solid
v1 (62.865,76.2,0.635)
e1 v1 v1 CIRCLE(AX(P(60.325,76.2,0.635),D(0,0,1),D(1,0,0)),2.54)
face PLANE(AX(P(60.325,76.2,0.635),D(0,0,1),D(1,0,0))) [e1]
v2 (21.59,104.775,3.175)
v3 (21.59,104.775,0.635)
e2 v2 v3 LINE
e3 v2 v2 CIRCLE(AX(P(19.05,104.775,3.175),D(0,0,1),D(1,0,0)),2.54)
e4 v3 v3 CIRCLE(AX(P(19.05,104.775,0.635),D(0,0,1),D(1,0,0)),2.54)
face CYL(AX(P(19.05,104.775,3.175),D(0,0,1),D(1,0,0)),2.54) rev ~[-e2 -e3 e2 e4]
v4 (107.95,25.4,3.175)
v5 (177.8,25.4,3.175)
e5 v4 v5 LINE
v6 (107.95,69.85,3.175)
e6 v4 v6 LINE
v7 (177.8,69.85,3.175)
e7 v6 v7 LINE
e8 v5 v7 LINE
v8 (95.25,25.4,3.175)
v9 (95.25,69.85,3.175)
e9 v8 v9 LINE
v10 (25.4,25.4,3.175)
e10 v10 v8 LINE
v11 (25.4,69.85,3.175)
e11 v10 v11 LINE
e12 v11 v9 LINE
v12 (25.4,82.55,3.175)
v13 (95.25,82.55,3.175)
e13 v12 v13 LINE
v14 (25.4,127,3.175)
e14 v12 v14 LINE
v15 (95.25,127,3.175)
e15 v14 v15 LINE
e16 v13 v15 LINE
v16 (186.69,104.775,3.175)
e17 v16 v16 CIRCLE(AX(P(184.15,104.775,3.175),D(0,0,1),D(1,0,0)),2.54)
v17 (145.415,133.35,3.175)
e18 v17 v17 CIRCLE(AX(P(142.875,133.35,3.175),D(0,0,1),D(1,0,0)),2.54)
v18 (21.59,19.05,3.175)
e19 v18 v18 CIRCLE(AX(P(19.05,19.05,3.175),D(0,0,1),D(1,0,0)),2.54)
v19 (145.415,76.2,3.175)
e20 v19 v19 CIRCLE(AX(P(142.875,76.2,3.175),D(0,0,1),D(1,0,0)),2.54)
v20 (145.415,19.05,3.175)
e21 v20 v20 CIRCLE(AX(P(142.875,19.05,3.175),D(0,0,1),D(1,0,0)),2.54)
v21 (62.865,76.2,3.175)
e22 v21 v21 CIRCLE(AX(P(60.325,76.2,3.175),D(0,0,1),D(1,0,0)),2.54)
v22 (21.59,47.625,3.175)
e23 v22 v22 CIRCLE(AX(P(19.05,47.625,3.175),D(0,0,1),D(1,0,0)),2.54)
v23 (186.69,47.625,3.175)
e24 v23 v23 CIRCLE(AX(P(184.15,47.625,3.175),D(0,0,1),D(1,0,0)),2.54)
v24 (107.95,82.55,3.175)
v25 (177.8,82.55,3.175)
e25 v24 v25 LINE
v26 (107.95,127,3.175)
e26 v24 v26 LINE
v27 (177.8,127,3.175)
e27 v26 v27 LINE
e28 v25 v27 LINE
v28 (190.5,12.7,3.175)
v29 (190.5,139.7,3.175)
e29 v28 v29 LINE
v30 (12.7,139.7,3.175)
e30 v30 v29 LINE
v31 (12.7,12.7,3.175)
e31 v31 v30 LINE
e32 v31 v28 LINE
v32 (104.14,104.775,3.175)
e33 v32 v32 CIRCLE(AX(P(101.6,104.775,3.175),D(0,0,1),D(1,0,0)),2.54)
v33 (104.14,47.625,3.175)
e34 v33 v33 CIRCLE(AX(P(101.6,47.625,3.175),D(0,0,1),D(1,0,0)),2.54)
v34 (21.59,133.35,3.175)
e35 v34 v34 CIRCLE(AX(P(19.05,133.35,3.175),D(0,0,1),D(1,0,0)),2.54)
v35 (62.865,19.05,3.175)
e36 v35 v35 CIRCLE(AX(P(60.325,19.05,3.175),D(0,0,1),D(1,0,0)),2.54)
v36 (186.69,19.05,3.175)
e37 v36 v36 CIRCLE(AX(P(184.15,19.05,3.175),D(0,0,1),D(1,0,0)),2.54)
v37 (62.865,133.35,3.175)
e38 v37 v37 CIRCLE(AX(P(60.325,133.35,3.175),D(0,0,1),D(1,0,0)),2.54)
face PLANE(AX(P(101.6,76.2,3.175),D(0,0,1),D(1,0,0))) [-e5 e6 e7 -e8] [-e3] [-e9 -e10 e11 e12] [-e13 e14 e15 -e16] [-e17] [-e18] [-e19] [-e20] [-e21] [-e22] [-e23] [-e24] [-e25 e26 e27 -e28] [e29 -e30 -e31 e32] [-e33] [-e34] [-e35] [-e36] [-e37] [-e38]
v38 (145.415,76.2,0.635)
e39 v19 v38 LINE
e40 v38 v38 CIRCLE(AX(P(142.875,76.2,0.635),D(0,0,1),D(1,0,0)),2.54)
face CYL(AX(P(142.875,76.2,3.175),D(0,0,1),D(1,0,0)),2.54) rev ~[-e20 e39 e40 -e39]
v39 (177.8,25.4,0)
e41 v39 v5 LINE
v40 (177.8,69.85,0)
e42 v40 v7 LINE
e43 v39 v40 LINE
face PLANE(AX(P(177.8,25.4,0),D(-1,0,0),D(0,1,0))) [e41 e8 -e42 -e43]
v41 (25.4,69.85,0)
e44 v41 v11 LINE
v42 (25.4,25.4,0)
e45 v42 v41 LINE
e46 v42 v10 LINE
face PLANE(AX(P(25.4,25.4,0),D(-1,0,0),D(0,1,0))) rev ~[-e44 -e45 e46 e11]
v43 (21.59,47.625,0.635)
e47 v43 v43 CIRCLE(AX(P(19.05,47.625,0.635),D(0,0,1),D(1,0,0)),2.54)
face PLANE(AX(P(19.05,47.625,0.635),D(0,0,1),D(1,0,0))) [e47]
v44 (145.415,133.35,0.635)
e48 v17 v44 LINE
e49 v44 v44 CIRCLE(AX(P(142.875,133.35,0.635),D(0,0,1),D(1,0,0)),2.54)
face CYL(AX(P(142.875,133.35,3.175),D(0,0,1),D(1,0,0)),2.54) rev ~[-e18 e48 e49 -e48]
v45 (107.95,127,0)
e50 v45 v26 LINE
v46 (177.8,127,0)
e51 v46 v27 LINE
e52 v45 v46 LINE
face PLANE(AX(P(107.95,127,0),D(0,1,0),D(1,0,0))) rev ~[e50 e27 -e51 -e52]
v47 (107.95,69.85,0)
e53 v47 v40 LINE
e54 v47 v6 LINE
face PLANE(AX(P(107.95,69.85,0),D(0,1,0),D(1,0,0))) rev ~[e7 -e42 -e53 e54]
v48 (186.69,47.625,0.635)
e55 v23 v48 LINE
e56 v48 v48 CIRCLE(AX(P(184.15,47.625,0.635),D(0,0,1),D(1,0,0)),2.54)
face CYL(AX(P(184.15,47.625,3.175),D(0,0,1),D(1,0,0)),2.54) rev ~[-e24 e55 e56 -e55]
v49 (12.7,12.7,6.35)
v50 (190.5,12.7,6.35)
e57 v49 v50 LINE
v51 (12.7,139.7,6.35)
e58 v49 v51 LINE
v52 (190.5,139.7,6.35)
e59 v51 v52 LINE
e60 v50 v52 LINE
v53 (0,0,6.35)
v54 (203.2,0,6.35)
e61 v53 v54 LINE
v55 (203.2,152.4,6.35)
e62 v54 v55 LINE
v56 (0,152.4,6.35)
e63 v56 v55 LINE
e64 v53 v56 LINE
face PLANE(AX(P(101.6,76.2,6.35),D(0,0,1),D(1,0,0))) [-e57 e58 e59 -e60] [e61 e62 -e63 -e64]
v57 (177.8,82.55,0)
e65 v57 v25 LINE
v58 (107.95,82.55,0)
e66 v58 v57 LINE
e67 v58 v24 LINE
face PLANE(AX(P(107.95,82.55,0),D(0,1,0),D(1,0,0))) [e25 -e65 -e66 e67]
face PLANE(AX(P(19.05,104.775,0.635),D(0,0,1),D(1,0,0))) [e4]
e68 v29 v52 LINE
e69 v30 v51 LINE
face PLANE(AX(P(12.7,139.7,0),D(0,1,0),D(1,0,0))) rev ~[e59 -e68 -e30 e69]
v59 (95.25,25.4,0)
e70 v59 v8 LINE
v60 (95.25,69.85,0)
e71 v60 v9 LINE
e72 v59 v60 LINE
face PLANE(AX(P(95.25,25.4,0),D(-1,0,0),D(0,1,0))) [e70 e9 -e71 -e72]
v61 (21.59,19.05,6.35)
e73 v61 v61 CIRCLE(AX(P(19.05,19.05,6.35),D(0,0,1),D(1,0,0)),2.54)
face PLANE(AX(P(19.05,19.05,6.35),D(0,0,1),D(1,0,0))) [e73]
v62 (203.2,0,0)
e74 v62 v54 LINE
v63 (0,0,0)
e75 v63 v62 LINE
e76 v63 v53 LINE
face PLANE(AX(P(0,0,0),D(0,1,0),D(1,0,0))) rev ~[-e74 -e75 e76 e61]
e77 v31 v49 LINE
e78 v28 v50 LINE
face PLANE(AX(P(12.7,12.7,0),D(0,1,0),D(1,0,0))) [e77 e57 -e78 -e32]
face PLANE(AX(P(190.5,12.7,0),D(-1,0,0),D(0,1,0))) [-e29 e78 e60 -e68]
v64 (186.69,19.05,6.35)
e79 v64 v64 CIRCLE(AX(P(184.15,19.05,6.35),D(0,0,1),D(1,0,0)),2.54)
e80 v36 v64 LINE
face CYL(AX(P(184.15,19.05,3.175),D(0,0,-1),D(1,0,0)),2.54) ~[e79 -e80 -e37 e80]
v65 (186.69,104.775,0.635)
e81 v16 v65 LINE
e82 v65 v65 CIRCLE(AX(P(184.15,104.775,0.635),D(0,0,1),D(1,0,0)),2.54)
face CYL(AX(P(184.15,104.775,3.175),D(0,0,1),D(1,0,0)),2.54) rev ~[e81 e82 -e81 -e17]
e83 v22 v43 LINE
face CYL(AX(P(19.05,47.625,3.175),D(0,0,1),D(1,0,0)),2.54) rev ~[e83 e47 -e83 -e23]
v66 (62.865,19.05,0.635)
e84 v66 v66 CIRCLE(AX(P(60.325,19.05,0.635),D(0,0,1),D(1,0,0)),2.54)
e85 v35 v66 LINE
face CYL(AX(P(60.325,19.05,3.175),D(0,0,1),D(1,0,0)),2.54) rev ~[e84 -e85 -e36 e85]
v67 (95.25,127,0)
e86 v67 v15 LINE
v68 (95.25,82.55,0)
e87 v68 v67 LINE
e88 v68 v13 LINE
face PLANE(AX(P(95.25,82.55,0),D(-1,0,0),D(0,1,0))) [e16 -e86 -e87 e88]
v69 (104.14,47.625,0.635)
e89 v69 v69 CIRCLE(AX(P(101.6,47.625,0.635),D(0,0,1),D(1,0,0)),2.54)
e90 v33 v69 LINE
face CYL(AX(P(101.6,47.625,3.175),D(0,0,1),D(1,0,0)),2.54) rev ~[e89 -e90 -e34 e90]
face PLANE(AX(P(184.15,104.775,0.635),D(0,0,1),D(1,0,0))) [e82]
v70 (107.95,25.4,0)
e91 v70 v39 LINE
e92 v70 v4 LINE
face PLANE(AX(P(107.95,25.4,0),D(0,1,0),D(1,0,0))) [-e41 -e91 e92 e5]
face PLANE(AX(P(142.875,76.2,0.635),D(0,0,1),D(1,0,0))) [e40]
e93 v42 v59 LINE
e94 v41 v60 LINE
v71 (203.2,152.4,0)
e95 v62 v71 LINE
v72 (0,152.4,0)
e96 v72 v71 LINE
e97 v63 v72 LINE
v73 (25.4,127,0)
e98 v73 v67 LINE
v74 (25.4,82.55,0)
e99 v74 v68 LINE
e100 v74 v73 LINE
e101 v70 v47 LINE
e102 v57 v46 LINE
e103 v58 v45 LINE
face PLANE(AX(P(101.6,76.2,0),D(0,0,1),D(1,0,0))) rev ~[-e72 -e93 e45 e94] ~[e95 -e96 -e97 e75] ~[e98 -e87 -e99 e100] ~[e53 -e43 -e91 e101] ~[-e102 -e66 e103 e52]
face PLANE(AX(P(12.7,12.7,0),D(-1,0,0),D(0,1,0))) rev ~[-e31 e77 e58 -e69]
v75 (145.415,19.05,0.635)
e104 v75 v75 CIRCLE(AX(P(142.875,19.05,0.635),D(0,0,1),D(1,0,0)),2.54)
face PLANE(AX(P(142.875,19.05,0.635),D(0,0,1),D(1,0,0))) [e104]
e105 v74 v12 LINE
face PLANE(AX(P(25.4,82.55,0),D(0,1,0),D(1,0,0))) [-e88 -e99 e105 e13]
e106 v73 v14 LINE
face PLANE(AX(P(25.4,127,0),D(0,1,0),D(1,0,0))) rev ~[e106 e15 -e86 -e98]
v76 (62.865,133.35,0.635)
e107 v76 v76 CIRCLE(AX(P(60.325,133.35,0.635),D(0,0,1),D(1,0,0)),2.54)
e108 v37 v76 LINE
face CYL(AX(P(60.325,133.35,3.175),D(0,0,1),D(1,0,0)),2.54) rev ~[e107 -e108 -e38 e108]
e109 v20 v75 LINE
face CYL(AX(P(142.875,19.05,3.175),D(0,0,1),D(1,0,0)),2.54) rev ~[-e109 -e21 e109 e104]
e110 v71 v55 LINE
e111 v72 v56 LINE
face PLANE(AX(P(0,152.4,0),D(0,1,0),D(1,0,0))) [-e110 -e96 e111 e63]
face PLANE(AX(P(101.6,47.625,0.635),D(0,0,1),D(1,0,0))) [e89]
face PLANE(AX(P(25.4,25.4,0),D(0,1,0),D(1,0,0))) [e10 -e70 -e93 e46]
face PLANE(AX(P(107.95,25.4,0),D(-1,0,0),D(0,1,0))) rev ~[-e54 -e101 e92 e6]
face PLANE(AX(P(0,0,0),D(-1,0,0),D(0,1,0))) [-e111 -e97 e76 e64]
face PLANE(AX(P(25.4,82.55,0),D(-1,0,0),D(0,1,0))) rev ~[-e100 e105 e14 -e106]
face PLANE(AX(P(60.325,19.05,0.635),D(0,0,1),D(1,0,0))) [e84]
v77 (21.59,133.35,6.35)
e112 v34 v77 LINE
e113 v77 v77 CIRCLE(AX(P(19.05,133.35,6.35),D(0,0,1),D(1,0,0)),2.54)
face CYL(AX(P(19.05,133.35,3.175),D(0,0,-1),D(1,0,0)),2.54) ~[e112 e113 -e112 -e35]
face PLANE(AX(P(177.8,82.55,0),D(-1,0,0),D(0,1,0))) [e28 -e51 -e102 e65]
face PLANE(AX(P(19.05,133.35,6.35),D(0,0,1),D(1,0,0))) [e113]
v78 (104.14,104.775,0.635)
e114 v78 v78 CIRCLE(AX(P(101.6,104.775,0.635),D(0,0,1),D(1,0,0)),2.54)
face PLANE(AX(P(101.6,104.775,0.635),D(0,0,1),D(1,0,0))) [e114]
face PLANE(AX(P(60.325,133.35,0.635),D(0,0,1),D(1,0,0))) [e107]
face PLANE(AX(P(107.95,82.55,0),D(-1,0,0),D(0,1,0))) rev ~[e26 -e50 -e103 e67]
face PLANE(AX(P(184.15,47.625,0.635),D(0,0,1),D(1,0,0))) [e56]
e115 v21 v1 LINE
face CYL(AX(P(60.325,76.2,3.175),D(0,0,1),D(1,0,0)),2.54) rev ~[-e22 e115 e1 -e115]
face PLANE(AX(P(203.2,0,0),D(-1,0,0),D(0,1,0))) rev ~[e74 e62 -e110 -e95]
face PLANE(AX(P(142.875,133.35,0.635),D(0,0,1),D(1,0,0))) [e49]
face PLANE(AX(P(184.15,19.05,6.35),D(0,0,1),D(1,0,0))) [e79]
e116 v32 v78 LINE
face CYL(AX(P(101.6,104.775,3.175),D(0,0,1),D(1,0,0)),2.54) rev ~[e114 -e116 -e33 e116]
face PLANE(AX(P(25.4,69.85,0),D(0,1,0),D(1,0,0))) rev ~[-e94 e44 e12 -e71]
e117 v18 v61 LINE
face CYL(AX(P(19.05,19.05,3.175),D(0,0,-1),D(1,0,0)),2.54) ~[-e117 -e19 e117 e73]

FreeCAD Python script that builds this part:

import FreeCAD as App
import Part
import Sketcher
from FreeCAD import Vector
Q = App.Units.Quantity

doc = App.newDocument("Part")
params = doc.addObject("Spreadsheet::Sheet", "Params")
for row, (alias, value) in enumerate([
    ("sketch1_width", "8 in"),
    ("sketch1_width2", "7 in"),
    ("sketch1_height", "6 in"),
    ("sketch1_height2", "5 in"),
    ("pad1_length", "0.25 in"),
    ("sketch2_width", "7 in"),
    ("sketch2_height", "5 in"),
    ("sketch2_width2", "2.75 in"),
    ("sketch2_height2", "1.75 in"),
    ("pad2_length", "0.125 in"),
    ("sketch3_diameter", "0.2 in"),
    ("pad3_length", "0.125 in"),
    ("sketch4_diameter", "0.2 in"),
    ("pocket1_length", "0.1 in"),
], start=1):
    params.set(f"A{row}", alias)
    params.set(f"B{row}", "=" + value)
    params.setAlias(f"B{row}", alias)

body = doc.addObject("PartDesign::Body", "Body")

# Sketch on XY plane
sketch1 = body.newObject("Sketcher::SketchObject", "Sketch")
sketch1.AttachmentSupport = (doc.getObject("XY_Plane"), [""])
sketch1.MapMode = "FlatFace"
sketch1.addGeometry([
    Part.LineSegment(Vector(0, 152, 0), Vector(0, 0, 0)),  # 0
    Part.LineSegment(Vector(0, 0, 0), Vector(203, 0, 0)),  # 1
    Part.LineSegment(Vector(203, 0, 0), Vector(203, 152, 0)),  # 2
    Part.LineSegment(Vector(203, 152, 0), Vector(0, 152, 0)),  # 3
    Part.LineSegment(Vector(190, 13, 0), Vector(13, 13, 0)),  # 4
    Part.LineSegment(Vector(13, 13, 0), Vector(13, 140, 0)),  # 5
    Part.LineSegment(Vector(13, 140, 0), Vector(190, 140, 0)),  # 6
    Part.LineSegment(Vector(190, 140, 0), Vector(190, 13, 0)),  # 7
], False)
sketch1.addConstraint([
    Sketcher.Constraint("Coincident", 0, 2, 1, 1),
    Sketcher.Constraint("Coincident", 1, 2, 2, 1),
    Sketcher.Constraint("Coincident", 2, 2, 3, 1),
    Sketcher.Constraint("Coincident", 3, 2, 0, 1),
    Sketcher.Constraint("Coincident", 4, 2, 5, 1),
    Sketcher.Constraint("Coincident", 5, 2, 6, 1),
    Sketcher.Constraint("Coincident", 6, 2, 7, 1),
    Sketcher.Constraint("Coincident", 7, 2, 4, 1),
    Sketcher.Constraint("Vertical", 0),
    Sketcher.Constraint("Horizontal", 1),
    Sketcher.Constraint("Vertical", 2),
    Sketcher.Constraint("Horizontal", 3),
    Sketcher.Constraint("Horizontal", 4),
    Sketcher.Constraint("Vertical", 5),
    Sketcher.Constraint("Horizontal", 6),
    Sketcher.Constraint("Vertical", 7),
    Sketcher.Constraint("Coincident", 0, 2, -1, 1),
    Sketcher.Constraint("DistanceX", 1, 1, 1, 2, Q("8 in")),
    Sketcher.Constraint("DistanceX", 4, 2, 4, 1, Q("7 in")),
    Sketcher.Constraint("DistanceY", 0, 2, 0, 1, Q("6 in")),
    Sketcher.Constraint("DistanceY", 5, 1, 5, 2, Q("5 in")),
    Sketcher.Constraint("DistanceX", -1, 1, 4, 2, Q("0.5 in")),
    Sketcher.Constraint("DistanceY", -1, 1, 4, 2, Q("0.5 in")),
])
sketch1.setExpression("Constraints[17]", "Params.sketch1_width")
sketch1.setExpression("Constraints[18]", "Params.sketch1_width2")
sketch1.setExpression("Constraints[19]", "Params.sketch1_height")
sketch1.setExpression("Constraints[20]", "Params.sketch1_height2")
pad1 = body.newObject("PartDesign::Pad", "Pad")
pad1.Profile = sketch1
pad1.setExpression("Length", "Params.pad1_length")

# Sketch on XY plane
sketch2 = body.newObject("Sketcher::SketchObject", "Sketch001")
sketch2.AttachmentSupport = (doc.getObject("XY_Plane"), [""])
sketch2.MapMode = "FlatFace"
sketch2.addGeometry([
    Part.LineSegment(Vector(13, 140, 0), Vector(13, 13, 0)),  # 0
    Part.LineSegment(Vector(13, 13, 0), Vector(190, 13, 0)),  # 1
    Part.LineSegment(Vector(190, 13, 0), Vector(190, 140, 0)),  # 2
    Part.LineSegment(Vector(190, 140, 0), Vector(13, 140, 0)),  # 3
    Part.LineSegment(Vector(95, 25, 0), Vector(25, 25, 0)),  # 4
    Part.LineSegment(Vector(25, 25, 0), Vector(25, 70, 0)),  # 5
    Part.LineSegment(Vector(25, 70, 0), Vector(95, 70, 0)),  # 6
    Part.LineSegment(Vector(95, 70, 0), Vector(95, 25, 0)),  # 7
    Part.LineSegment(Vector(178, 25, 0), Vector(108, 25, 0)),  # 8
    Part.LineSegment(Vector(108, 25, 0), Vector(108, 70, 0)),  # 9
    Part.LineSegment(Vector(108, 70, 0), Vector(178, 70, 0)),  # 10
    Part.LineSegment(Vector(178, 70, 0), Vector(178, 25, 0)),  # 11
    Part.LineSegment(Vector(95, 83, 0), Vector(25, 83, 0)),  # 12
    Part.LineSegment(Vector(25, 83, 0), Vector(25, 127, 0)),  # 13
    Part.LineSegment(Vector(25, 127, 0), Vector(95, 127, 0)),  # 14
    Part.LineSegment(Vector(95, 127, 0), Vector(95, 83, 0)),  # 15
    Part.LineSegment(Vector(178, 83, 0), Vector(108, 83, 0)),  # 16
    Part.LineSegment(Vector(108, 83, 0), Vector(108, 127, 0)),  # 17
    Part.LineSegment(Vector(108, 127, 0), Vector(178, 127, 0)),  # 18
    Part.LineSegment(Vector(178, 127, 0), Vector(178, 83, 0)),  # 19
], False)
sketch2.addConstraint([
    Sketcher.Constraint("Coincident", 0, 2, 1, 1),
    Sketcher.Constraint("Coincident", 1, 2, 2, 1),
    Sketcher.Constraint("Coincident", 2, 2, 3, 1),
    Sketcher.Constraint("Coincident", 3, 2, 0, 1),
    Sketcher.Constraint("Coincident", 4, 2, 5, 1),
    Sketcher.Constraint("Coincident", 5, 2, 6, 1),
    Sketcher.Constraint("Coincident", 6, 2, 7, 1),
    Sketcher.Constraint("Coincident", 7, 2, 4, 1),
    Sketcher.Constraint("Coincident", 8, 2, 9, 1),
    Sketcher.Constraint("Coincident", 9, 2, 10, 1),
    Sketcher.Constraint("Coincident", 10, 2, 11, 1),
    Sketcher.Constraint("Coincident", 11, 2, 8, 1),
    Sketcher.Constraint("Coincident", 12, 2, 13, 1),
    Sketcher.Constraint("Coincident", 13, 2, 14, 1),
    Sketcher.Constraint("Coincident", 14, 2, 15, 1),
    Sketcher.Constraint("Coincident", 15, 2, 12, 1),
    Sketcher.Constraint("Coincident", 16, 2, 17, 1),
    Sketcher.Constraint("Coincident", 17, 2, 18, 1),
    Sketcher.Constraint("Coincident", 18, 2, 19, 1),
    Sketcher.Constraint("Coincident", 19, 2, 16, 1),
    Sketcher.Constraint("Vertical", 0),
    Sketcher.Constraint("Horizontal", 1),
    Sketcher.Constraint("Vertical", 2),
    Sketcher.Constraint("Horizontal", 3),
    Sketcher.Constraint("Horizontal", 4),
    Sketcher.Constraint("Vertical", 5),
    Sketcher.Constraint("Horizontal", 6),
    Sketcher.Constraint("Vertical", 7),
    Sketcher.Constraint("Horizontal", 8),
    Sketcher.Constraint("Vertical", 9),
    Sketcher.Constraint("Horizontal", 10),
    Sketcher.Constraint("Vertical", 11),
    Sketcher.Constraint("Horizontal", 12),
    Sketcher.Constraint("Vertical", 13),
    Sketcher.Constraint("Horizontal", 14),
    Sketcher.Constraint("Vertical", 15),
    Sketcher.Constraint("Horizontal", 16),
    Sketcher.Constraint("Vertical", 17),
    Sketcher.Constraint("Horizontal", 18),
    Sketcher.Constraint("Vertical", 19),
    Sketcher.Constraint("Horizontal", 7, 2, 8, 2),
    Sketcher.Constraint("Horizontal", 6, 2, 9, 2),
    Sketcher.Constraint("Horizontal", 15, 2, 16, 2),
    Sketcher.Constraint("Horizontal", 14, 2, 17, 2),
    Sketcher.Constraint("Vertical", 5, 2, 12, 2),
    Sketcher.Constraint("Vertical", 7, 2, 14, 2),
    Sketcher.Constraint("Vertical", 9, 2, 16, 2),
    Sketcher.Constraint("Vertical", 11, 2, 18, 2),
    Sketcher.Constraint("Equal", 6, 8),
    Sketcher.Constraint("Equal", 11, 13),
    Sketcher.Constraint("DistanceX", 1, 1, 1, 2, Q("7 in")),
    Sketcher.Constraint("DistanceY", 0, 2, 0, 1, Q("5 in")),
    Sketcher.Constraint("DistanceX", -1, 1, 4, 2, Q("1 in")),
    Sketcher.Constraint("DistanceY", -1, 1, 4, 2, Q("1 in")),
    Sketcher.Constraint("DistanceX", -1, 1, 10, 2, Q("7 in")),
    Sketcher.Constraint("DistanceY", -1, 1, 13, 2, Q("5 in")),
    Sketcher.Constraint("DistanceX", 4, 2, 4, 1, Q("2.75 in")),
    Sketcher.Constraint("DistanceY", 5, 1, 5, 2, Q("1.75 in")),
    Sketcher.Constraint("DistanceX", -1, 1, 0, 2, Q("0.5 in")),
    Sketcher.Constraint("DistanceY", -1, 1, 0, 2, Q("0.5 in")),
])
sketch2.setExpression("Constraints[50]", "Params.sketch2_width")
sketch2.setExpression("Constraints[51]", "Params.sketch2_height")
sketch2.setExpression("Constraints[56]", "Params.sketch2_width2")
sketch2.setExpression("Constraints[57]", "Params.sketch2_height2")
pad2 = body.newObject("PartDesign::Pad", "Pad001")
pad2.Profile = sketch2
pad2.setExpression("Length", "Params.pad2_length")

# Sketch on XY plane
sketch3 = body.newObject("Sketcher::SketchObject", "Sketch002")
sketch3.AttachmentSupport = (doc.getObject("XY_Plane"), [""])
sketch3.MapMode = "FlatFace"
sketch3.AttachmentOffset = App.Placement(Vector(0, 0, 0.125 * 25.4), App.Rotation())
sketch3.addGeometry([
    Part.Circle(Vector(19.1, 133.3, 0), Vector(0, 0, 1), 2.5),
    Part.Circle(Vector(19.1, 19.1, 0), Vector(0, 0, 1), 2.5),
    Part.Circle(Vector(184.2, 19.1, 0), Vector(0, 0, 1), 2.5),
], False)
sketch3.addConstraint([
    Sketcher.Constraint("Equal", 0, 1),
    Sketcher.Constraint("Equal", 1, 2),
    Sketcher.Constraint("Horizontal", 1, 3, 2, 3),
    Sketcher.Constraint("Vertical", 0, 3, 1, 3),
    Sketcher.Constraint("Diameter", 0, Q("0.2 in")),
    Sketcher.Constraint("DistanceY", 1, 3, 0, 3, Q("4.5 in")),
    Sketcher.Constraint("DistanceX", 1, 3, 2, 3, Q("6.5 in")),
    Sketcher.Constraint("DistanceX", -1, 1, 0, 3, Q("0.75 in")),
    Sketcher.Constraint("DistanceY", -1, 1, 0, 3, Q("5.25 in")),
])
sketch3.setExpression("Constraints[4]", "Params.sketch3_diameter")
pad3 = body.newObject("PartDesign::Pad", "Pad002")
pad3.Profile = sketch3
pad3.setExpression("Length", "Params.pad3_length")

# Sketch on XY plane
sketch4 = body.newObject("Sketcher::SketchObject", "Sketch003")
sketch4.AttachmentSupport = (doc.getObject("XY_Plane"), [""])
sketch4.MapMode = "FlatFace"
sketch4.AttachmentOffset = App.Placement(Vector(0, 0, 0.125 * 25.4), App.Rotation())
sketch4.addGeometry([
    Part.Circle(Vector(60.3, 133.3, 0), Vector(0, 0, 1), 2.5),  # 0
    Part.Circle(Vector(142.9, 133.3, 0), Vector(0, 0, 1), 2.5),  # 1
    Part.Circle(Vector(101.6, 47.6, 0), Vector(0, 0, 1), 2.5),  # 2
    Part.Circle(Vector(101.6, 104.8, 0), Vector(0, 0, 1), 2.5),  # 3
    Part.Circle(Vector(142.9, 76.2, 0), Vector(0, 0, 1), 2.5),  # 4
    Part.Circle(Vector(60.3, 19.1, 0), Vector(0, 0, 1), 2.5),  # 5
    Part.Circle(Vector(184.2, 47.6, 0), Vector(0, 0, 1), 2.5),  # 6
    Part.Circle(Vector(142.9, 19.1, 0), Vector(0, 0, 1), 2.5),  # 7
    Part.Circle(Vector(19.1, 47.6, 0), Vector(0, 0, 1), 2.5),  # 8
    Part.Circle(Vector(184.2, 104.8, 0), Vector(0, 0, 1), 2.5),  # 9
    Part.Circle(Vector(60.3, 76.2, 0), Vector(0, 0, 1), 2.5),  # 10
    Part.Circle(Vector(19.1, 104.8, 0), Vector(0, 0, 1), 2.5),  # 11
], False)
sketch4.addConstraint([
    Sketcher.Constraint("Equal", 0, 1),
    Sketcher.Constraint("Equal", 1, 2),
    Sketcher.Constraint("Equal", 2, 3),
    Sketcher.Constraint("Equal", 3, 4),
    Sketcher.Constraint("Equal", 4, 5),
    Sketcher.Constraint("Equal", 5, 6),
    Sketcher.Constraint("Equal", 6, 7),
    Sketcher.Constraint("Equal", 7, 8),
    Sketcher.Constraint("Equal", 8, 9),
    Sketcher.Constraint("Equal", 9, 10),
    Sketcher.Constraint("Equal", 10, 11),
    Sketcher.Constraint("Horizontal", 0, 3, 1, 3),
    Sketcher.Constraint("Horizontal", 2, 3, 6, 3),
    Sketcher.Constraint("Horizontal", 5, 3, 7, 3),
    Sketcher.Constraint("Horizontal", 6, 3, 8, 3),
    Sketcher.Constraint("Horizontal", 3, 3, 9, 3),
    Sketcher.Constraint("Horizontal", 4, 3, 10, 3),
    Sketcher.Constraint("Horizontal", 9, 3, 11, 3),
    Sketcher.Constraint("Vertical", 2, 3, 3, 3),
    Sketcher.Constraint("Vertical", 1, 3, 4, 3),
    Sketcher.Constraint("Vertical", 0, 3, 5, 3),
    Sketcher.Constraint("Vertical", 4, 3, 7, 3),
    Sketcher.Constraint("Vertical", 6, 3, 9, 3),
    Sketcher.Constraint("Vertical", 5, 3, 10, 3),
    Sketcher.Constraint("Vertical", 8, 3, 11, 3),
    Sketcher.Constraint("Diameter", 0, Q("0.2 in")),
    Sketcher.Constraint("DistanceX", -1, 1, 2, 3, Q("4 in")),
    Sketcher.Constraint("DistanceY", -1, 1, 4, 3, Q("3 in")),
    Sketcher.Constraint("DistanceY", 5, 3, 0, 3, Q("4.5 in")),
    Sketcher.Constraint("DistanceY", -1, 1, 0, 3, Q("5.25 in")),
    Sketcher.Constraint("DistanceX", -1, 1, 6, 3, Q("7.25 in")),
    Sketcher.Constraint("DistanceX", -1, 1, 8, 3, Q("0.75 in")),
    Sketcher.Constraint("DistanceX", 0, 3, 1, 3, Q("3.25 in")),
    Sketcher.Constraint("DistanceY", 2, 3, 3, 3, Q("2.25 in")),
    Sketcher.Constraint("DistanceX", -1, 1, 0, 3, Q("2.375 in")),
    Sketcher.Constraint("DistanceY", -1, 1, 2, 3, Q("1.875 in")),
])
sketch4.setExpression("Constraints[25]", "Params.sketch4_diameter")
pocket1 = body.newObject("PartDesign::Pocket", "Pocket")
pocket1.Profile = sketch4
pocket1.setExpression("Length", "Params.pocket1_length")

doc.recompute()
